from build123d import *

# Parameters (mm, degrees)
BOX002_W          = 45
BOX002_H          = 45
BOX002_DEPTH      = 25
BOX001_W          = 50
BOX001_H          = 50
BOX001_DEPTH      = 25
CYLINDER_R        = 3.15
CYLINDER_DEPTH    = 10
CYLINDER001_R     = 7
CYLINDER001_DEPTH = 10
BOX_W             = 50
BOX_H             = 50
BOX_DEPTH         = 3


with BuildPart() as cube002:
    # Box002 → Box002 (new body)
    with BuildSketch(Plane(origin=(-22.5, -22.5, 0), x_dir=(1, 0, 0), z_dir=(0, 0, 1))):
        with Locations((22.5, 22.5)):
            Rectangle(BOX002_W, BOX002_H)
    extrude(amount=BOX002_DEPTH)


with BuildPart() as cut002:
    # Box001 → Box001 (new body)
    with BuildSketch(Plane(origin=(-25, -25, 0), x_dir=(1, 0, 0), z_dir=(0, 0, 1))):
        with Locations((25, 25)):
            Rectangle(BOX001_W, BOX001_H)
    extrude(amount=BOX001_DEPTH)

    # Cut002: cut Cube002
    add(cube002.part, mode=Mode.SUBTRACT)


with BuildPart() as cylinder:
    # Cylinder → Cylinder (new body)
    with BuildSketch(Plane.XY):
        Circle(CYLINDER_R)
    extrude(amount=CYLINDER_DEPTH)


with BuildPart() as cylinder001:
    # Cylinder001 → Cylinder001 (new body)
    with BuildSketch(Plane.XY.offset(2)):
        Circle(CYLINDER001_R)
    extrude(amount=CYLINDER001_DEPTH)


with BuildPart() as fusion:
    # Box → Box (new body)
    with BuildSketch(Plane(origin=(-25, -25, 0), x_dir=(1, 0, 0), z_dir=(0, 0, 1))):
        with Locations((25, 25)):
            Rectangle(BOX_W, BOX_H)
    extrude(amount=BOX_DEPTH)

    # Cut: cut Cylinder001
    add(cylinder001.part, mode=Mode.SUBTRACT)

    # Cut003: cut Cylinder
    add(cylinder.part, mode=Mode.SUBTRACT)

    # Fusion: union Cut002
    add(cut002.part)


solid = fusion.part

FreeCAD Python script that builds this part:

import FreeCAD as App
import Part
import Sketcher

V = App.Vector
Q = App.Units.Quantity

doc = App.newDocument("Part")
params = doc.addObject("Spreadsheet::Sheet", "Params")
for row, (alias, value) in enumerate([
    ("sketch1_width", "45 mm"),
    ("pad1_length", "25 mm"),
    ("sketch2_width", "50 mm"),
    ("pad2_length", "25 mm"),
    ("sketch3_diameter", "6.3 mm"),
    ("pad3_length", "10 mm"),
    ("sketch4_diameter", "14 mm"),
    ("pad4_length", "10 mm"),
    ("sketch5_width", "50 mm"),
    ("pad5_length", "3 mm"),
], start=1):
    params.set(f"A{row}", alias)
    params.set(f"B{row}", "=" + value)
    params.setAlias(f"B{row}", alias)

body = doc.addObject("PartDesign::Body", "Body")

# Sketch on XY plane
sketch1 = body.newObject("Sketcher::SketchObject", "Sketch")
sketch1.AttachmentSupport = (doc.getObject("XY_Plane"), [""])
sketch1.MapMode = "FlatFace"
sketch1.addGeometry(Part.LineSegment(V(-22, 22, 0), V(-22, -22, 0)), False)
sketch1.addGeometry(Part.LineSegment(V(-22, -22, 0), V(22, -22, 0)), False)
sketch1.addGeometry(Part.LineSegment(V(22, -22, 0), V(22, 22, 0)), False)
sketch1.addGeometry(Part.LineSegment(V(22, 22, 0), V(-22, 22, 0)), False)
sketch1.addConstraint(Sketcher.Constraint("Coincident", 0, 2, 1, 1))
sketch1.addConstraint(Sketcher.Constraint("Coincident", 1, 2, 2, 1))
sketch1.addConstraint(Sketcher.Constraint("Coincident", 2, 2, 3, 1))
sketch1.addConstraint(Sketcher.Constraint("Coincident", 3, 2, 0, 1))
sketch1.addConstraint(Sketcher.Constraint("Vertical", 0))
sketch1.addConstraint(Sketcher.Constraint("Horizontal", 1))
sketch1.addConstraint(Sketcher.Constraint("Vertical", 2))
sketch1.addConstraint(Sketcher.Constraint("Horizontal", 3))
sketch1.addConstraint(Sketcher.Constraint("Symmetric", 0, 2, 2, 2, -1, 1))
sketch1.addConstraint(Sketcher.Constraint("Equal", 3, 0))
sketch1.addConstraint(Sketcher.Constraint("DistanceX", 1, 1, 1, 2, Q("45 mm")))
sketch1.setExpression("Constraints[10]", "Params.sketch1_width")
pad1 = body.newObject("PartDesign::Pad", "Pad")
pad1.Profile = sketch1
pad1.setExpression("Length", "Params.pad1_length")
body2 = doc.addObject("PartDesign::Body", "Body001")

# Sketch on XY plane
sketch2 = body2.newObject("Sketcher::SketchObject", "Sketch001")
sketch2.AttachmentSupport = (doc.getObject("XY_Plane001"), [""])
sketch2.MapMode = "FlatFace"
sketch2.addGeometry(Part.LineSegment(V(-25, 25, 0), V(-25, -25, 0)), False)
sketch2.addGeometry(Part.LineSegment(V(-25, -25, 0), V(25, -25, 0)), False)
sketch2.addGeometry(Part.LineSegment(V(25, -25, 0), V(25, 25, 0)), False)
sketch2.addGeometry(Part.LineSegment(V(25, 25, 0), V(-25, 25, 0)), False)
sketch2.addConstraint(Sketcher.Constraint("Coincident", 0, 2, 1, 1))
sketch2.addConstraint(Sketcher.Constraint("Coincident", 1, 2, 2, 1))
sketch2.addConstraint(Sketcher.Constraint("Coincident", 2, 2, 3, 1))
sketch2.addConstraint(Sketcher.Constraint("Coincident", 3, 2, 0, 1))
sketch2.addConstraint(Sketcher.Constraint("Vertical", 0))
sketch2.addConstraint(Sketcher.Constraint("Horizontal", 1))
sketch2.addConstraint(Sketcher.Constraint("Vertical", 2))
sketch2.addConstraint(Sketcher.Constraint("Horizontal", 3))
sketch2.addConstraint(Sketcher.Constraint("Symmetric", 0, 2, 2, 2, -1, 1))
sketch2.addConstraint(Sketcher.Constraint("Equal", 3, 0))
sketch2.addConstraint(Sketcher.Constraint("DistanceX", 1, 1, 1, 2, Q("50 mm")))
sketch2.setExpression("Constraints[10]", "Params.sketch2_width")
pad2 = body2.newObject("PartDesign::Pad", "Pad001")
pad2.Profile = sketch2
pad2.setExpression("Length", "Params.pad2_length")
doc.recompute()

boolean = body2.newObject("PartDesign::Boolean", "Boolean")
boolean.Type = "Cut"
boolean.addObjects([body])
body3 = doc.addObject("PartDesign::Body", "Body002")

# Sketch on XY plane
sketch3 = body3.newObject("Sketcher::SketchObject", "Sketch002")
sketch3.AttachmentSupport = (doc.getObject("XY_Plane002"), [""])
sketch3.MapMode = "FlatFace"
sketch3.addGeometry(Part.Circle(V(0, 0, 0), V(0, 0, 1), 3.1), False)
sketch3.addConstraint(Sketcher.Constraint("Coincident", 0, 3, -1, 1))
sketch3.addConstraint(Sketcher.Constraint("Diameter", 0, Q("6.3 mm")))
sketch3.setExpression("Constraints[1]", "Params.sketch3_diameter")
pad3 = body3.newObject("PartDesign::Pad", "Pad002")
pad3.Profile = sketch3
pad3.setExpression("Length", "Params.pad3_length")
body4 = doc.addObject("PartDesign::Body", "Body003")

# Sketch on XY plane
sketch4 = body4.newObject("Sketcher::SketchObject", "Sketch003")
sketch4.AttachmentSupport = (doc.getObject("XY_Plane003"), [""])
sketch4.MapMode = "FlatFace"
sketch4.AttachmentOffset = App.Placement(V(0, 0, 2), App.Rotation())
sketch4.addGeometry(Part.Circle(V(0, 0, 0), V(0, 0, 1), 7), False)
sketch4.addConstraint(Sketcher.Constraint("Coincident", 0, 3, -1, 1))
sketch4.addConstraint(Sketcher.Constraint("Diameter", 0, Q("14 mm")))
sketch4.setExpression("Constraints[1]", "Params.sketch4_diameter")
pad4 = body4.newObject("PartDesign::Pad", "Pad003")
pad4.Profile = sketch4
pad4.setExpression("Length", "Params.pad4_length")
body5 = doc.addObject("PartDesign::Body", "Body004")

# Sketch on XY plane
sketch5 = body5.newObject("Sketcher::SketchObject", "Sketch004")
sketch5.AttachmentSupport = (doc.getObject("XY_Plane004"), [""])
sketch5.MapMode = "FlatFace"
sketch5.addGeometry(Part.LineSegment(V(-25, 25, 0), V(-25, -25, 0)), False)
sketch5.addGeometry(Part.LineSegment(V(-25, -25, 0), V(25, -25, 0)), False)
sketch5.addGeometry(Part.LineSegment(V(25, -25, 0), V(25, 25, 0)), False)
sketch5.addGeometry(Part.LineSegment(V(25, 25, 0), V(-25, 25, 0)), False)
sketch5.addConstraint(Sketcher.Constraint("Coincident", 0, 2, 1, 1))
sketch5.addConstraint(Sketcher.Constraint("Coincident", 1, 2, 2, 1))
sketch5.addConstraint(Sketcher.Constraint("Coincident", 2, 2, 3, 1))
sketch5.addConstraint(Sketcher.Constraint("Coincident", 3, 2, 0, 1))
sketch5.addConstraint(Sketcher.Constraint("Vertical", 0))
sketch5.addConstraint(Sketcher.Constraint("Horizontal", 1))
sketch5.addConstraint(Sketcher.Constraint("Vertical", 2))
sketch5.addConstraint(Sketcher.Constraint("Horizontal", 3))
sketch5.addConstraint(Sketcher.Constraint("Symmetric", 0, 2, 2, 2, -1, 1))
sketch5.addConstraint(Sketcher.Constraint("Equal", 3, 0))
sketch5.addConstraint(Sketcher.Constraint("DistanceX", 1, 1, 1, 2, Q("50 mm")))
sketch5.setExpression("Constraints[10]", "Params.sketch5_width")
pad5 = body5.newObject("PartDesign::Pad", "Pad004")
pad5.Profile = sketch5
pad5.setExpression("Length", "Params.pad5_length")
doc.recompute()

boolean2 = body5.newObject("PartDesign::Boolean", "Boolean001")
boolean2.Type = "Cut"
boolean2.addObjects([body4])
doc.recompute()

boolean3 = body5.newObject("PartDesign::Boolean", "Boolean002")
boolean3.Type = "Cut"
boolean3.addObjects([body3])
doc.recompute()

boolean4 = body5.newObject("PartDesign::Boolean", "Boolean003")
boolean4.Type = "Fuse"
boolean4.addObjects([body2])

doc.recompute()
